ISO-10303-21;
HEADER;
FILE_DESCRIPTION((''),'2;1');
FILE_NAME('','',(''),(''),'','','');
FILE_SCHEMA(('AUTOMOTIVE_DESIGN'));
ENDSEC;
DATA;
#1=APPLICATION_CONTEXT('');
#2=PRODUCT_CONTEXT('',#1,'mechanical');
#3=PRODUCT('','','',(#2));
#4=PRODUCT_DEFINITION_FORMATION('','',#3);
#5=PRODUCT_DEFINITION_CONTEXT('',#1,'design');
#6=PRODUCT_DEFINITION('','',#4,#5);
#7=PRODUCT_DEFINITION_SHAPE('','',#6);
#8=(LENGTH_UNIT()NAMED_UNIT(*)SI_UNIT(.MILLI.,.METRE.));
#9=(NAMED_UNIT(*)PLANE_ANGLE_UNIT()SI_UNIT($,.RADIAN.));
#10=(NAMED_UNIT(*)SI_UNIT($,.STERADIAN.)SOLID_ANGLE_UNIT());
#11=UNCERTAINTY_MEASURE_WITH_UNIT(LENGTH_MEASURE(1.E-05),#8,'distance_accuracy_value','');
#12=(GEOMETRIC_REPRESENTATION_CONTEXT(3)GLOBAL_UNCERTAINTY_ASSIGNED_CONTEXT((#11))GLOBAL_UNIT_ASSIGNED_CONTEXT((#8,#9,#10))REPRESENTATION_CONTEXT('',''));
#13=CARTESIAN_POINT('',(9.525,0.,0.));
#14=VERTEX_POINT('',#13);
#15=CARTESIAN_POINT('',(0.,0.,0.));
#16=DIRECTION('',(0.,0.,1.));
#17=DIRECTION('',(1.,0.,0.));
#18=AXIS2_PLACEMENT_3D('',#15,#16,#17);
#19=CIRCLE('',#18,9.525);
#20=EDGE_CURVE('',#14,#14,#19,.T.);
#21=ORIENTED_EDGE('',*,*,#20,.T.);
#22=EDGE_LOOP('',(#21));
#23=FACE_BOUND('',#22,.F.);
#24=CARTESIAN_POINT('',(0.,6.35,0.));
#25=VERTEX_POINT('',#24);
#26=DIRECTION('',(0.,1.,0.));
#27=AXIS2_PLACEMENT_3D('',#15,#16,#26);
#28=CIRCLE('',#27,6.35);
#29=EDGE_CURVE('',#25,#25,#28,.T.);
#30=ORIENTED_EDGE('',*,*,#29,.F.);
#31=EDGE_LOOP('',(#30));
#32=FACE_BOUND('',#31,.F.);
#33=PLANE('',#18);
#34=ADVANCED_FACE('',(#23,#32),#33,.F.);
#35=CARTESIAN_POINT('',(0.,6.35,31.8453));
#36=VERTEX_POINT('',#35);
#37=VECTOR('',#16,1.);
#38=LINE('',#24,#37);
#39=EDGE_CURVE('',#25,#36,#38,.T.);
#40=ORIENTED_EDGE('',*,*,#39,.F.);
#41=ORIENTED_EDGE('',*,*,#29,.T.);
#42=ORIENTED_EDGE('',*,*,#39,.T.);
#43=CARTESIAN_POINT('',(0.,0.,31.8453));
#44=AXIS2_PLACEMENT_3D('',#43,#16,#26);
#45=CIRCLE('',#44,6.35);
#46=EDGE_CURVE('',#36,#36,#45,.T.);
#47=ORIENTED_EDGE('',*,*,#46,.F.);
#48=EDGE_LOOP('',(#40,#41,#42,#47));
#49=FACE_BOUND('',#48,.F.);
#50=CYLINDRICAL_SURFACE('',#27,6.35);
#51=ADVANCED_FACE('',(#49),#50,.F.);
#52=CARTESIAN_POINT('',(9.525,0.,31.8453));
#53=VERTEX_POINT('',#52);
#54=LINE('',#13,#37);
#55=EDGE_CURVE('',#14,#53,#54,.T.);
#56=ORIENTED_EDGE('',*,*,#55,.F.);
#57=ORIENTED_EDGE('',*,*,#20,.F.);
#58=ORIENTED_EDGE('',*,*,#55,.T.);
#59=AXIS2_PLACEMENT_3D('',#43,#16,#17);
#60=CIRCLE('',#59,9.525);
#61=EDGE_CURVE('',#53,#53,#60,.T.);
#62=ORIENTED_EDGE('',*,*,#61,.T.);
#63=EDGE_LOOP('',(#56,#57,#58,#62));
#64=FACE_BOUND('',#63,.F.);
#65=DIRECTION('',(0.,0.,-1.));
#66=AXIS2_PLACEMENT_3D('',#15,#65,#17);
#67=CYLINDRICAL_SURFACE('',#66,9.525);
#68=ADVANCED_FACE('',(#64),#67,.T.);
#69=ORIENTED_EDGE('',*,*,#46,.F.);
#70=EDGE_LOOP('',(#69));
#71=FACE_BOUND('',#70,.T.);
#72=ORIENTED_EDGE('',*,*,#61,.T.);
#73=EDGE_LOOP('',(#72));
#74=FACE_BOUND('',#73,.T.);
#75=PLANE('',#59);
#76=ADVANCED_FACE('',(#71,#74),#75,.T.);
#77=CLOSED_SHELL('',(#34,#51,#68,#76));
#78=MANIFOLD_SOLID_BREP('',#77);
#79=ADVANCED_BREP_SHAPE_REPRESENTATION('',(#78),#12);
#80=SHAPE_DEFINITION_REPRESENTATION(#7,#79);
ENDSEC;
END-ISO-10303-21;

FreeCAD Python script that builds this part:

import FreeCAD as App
import Part
import Sketcher
from FreeCAD import Vector
Q = App.Units.Quantity

doc = App.newDocument("Part")
body = doc.addObject("PartDesign::Body", "Body")

# Sketch on XY plane
sketch1 = doc.addObject("Sketcher::SketchObject", "Sketch")
body.addObject(sketch1)
sketch1.AttachmentSupport = (doc.XY_Plane, [""])
sketch1.MapMode = "FlatFace"
sketch1.addGeometry(Part.Circle(Vector(0, 0, 0), Vector(0, 0, 1), 10), False)
sketch1.addConstraint(Sketcher.Constraint("Coincident", 0, 3, -1, 1))
sketch1.addConstraint(Sketcher.Constraint("Diameter", 0, Q("0.75 in")))
pad1 = doc.addObject("PartDesign::Pad", "Pad")
body.addObject(pad1)
pad1.Profile = sketch1
pad1.Length = 31.8453

# Sketch on XY plane
sketch2 = doc.addObject("Sketcher::SketchObject", "Sketch001")
body.addObject(sketch2)
sketch2.AttachmentSupport = (doc.XY_Plane, [""])
sketch2.MapMode = "FlatFace"
sketch2.addGeometry(Part.Circle(Vector(0, 0, 0), Vector(0, 0, 1), 6), False)
sketch2.addConstraint(Sketcher.Constraint("Coincident", 0, 3, -1, 1))
sketch2.addConstraint(Sketcher.Constraint("Diameter", 0, Q("0.5 in")))
doc.recompute()
hole = doc.addObject("PartDesign::Hole", "Hole")
body.addObject(hole)
hole.Profile = sketch2
hole.ThreadType = "None"
hole.Diameter = Q("0.5 in")
hole.DepthType = "ThroughAll"
hole.Reversed = True

doc.recompute()
